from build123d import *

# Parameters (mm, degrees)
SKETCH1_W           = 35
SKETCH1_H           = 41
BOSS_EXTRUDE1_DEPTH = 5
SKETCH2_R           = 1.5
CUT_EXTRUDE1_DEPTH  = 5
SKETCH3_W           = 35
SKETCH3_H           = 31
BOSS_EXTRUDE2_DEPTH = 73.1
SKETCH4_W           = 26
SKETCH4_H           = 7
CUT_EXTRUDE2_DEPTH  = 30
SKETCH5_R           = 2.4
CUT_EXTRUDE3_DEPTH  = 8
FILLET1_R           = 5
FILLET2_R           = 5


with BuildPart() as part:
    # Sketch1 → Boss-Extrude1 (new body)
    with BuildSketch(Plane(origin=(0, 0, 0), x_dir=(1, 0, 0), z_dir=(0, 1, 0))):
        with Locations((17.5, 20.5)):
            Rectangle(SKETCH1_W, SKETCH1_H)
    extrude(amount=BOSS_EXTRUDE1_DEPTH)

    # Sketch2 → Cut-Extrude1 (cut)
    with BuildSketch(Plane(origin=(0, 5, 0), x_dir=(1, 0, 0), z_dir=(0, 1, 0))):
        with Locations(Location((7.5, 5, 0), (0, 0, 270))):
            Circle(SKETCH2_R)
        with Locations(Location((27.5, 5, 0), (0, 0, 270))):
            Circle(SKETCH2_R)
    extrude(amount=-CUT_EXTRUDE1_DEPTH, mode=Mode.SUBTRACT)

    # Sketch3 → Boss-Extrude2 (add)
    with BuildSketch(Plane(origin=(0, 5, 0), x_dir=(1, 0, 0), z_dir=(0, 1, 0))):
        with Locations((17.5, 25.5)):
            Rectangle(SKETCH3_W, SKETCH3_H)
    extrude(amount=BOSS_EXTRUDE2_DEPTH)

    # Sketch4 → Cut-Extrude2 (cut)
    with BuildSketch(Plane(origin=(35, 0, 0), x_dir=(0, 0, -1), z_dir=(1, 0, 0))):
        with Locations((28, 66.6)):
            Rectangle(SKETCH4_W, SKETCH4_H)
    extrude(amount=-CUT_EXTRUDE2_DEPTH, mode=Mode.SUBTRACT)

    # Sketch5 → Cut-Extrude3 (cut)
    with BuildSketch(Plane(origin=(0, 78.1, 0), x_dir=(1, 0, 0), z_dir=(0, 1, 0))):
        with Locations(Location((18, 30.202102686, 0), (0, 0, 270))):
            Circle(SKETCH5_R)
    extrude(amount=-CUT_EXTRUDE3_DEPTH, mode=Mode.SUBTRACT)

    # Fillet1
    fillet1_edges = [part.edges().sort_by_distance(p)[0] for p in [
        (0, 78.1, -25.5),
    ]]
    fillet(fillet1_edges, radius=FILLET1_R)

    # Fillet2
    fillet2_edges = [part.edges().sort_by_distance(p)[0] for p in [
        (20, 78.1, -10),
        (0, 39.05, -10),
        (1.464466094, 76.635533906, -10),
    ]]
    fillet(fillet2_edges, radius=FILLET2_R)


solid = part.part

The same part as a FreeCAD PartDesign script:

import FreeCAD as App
import Part
import Sketcher
Q = App.Units.Quantity


def edges_at(feature, points):
    """Names of the edges that pass closest to the given points."""
    edges = feature.Shape.Edges
    near = lambda p: min(range(len(edges)), key=lambda i: edges[i].distToShape(Part.Vertex(*p))[0])
    return sorted({f"Edge{near(p) + 1}" for p in points})

doc = App.newDocument("Part")
params = doc.addObject("Spreadsheet::Sheet", "Params")
for row, (alias, value) in enumerate([
    ("sketch1_width", "35 mm"),
    ("sketch1_height", "41 mm"),
    ("pad1_length", "5 mm"),
    ("sketch2_diameter", "3 mm"),
    ("pocket1_length", "5 mm"),
    ("sketch3_width", "35 mm"),
    ("sketch3_height", "31 mm"),
    ("pad2_length", "73.1 mm"),
    ("sketch4_width", "7 mm"),
    ("sketch4_height", "26 mm"),
    ("pocket2_length", "30 mm"),
    ("sketch5_diameter", "4.8 mm"),
    ("pocket3_length", "8 mm"),
    ("fillet_radius", "5 mm"),
    ("fillet2_radius", "5 mm"),
], start=1):
    params.set(f"A{row}", alias)
    params.set(f"B{row}", "=" + value)
    params.setAlias(f"B{row}", alias)

body = doc.addObject("PartDesign::Body", "Body")

# Sketch on XZ plane
sketch1 = body.newObject("Sketcher::SketchObject", "Sketch")
sketch1.AttachmentSupport = (doc.getObject("XZ_Plane"), [""])
sketch1.MapMode = "FlatFace"
sketch1.addGeometry([
    Part.LineSegment(App.Vector(0, -41, 0), App.Vector(0, 0, 0)),
    Part.LineSegment(App.Vector(0, 0, 0), App.Vector(35, 0, 0)),
    Part.LineSegment(App.Vector(35, 0, 0), App.Vector(35, -41, 0)),
    Part.LineSegment(App.Vector(35, -41, 0), App.Vector(0, -41, 0)),
], False)
sketch1.addConstraint([
    Sketcher.Constraint("Coincident", 0, 2, 1, 1),
    Sketcher.Constraint("Coincident", 1, 2, 2, 1),
    Sketcher.Constraint("Coincident", 2, 2, 3, 1),
    Sketcher.Constraint("Coincident", 3, 2, 0, 1),
    Sketcher.Constraint("Vertical", 0),
    Sketcher.Constraint("Horizontal", 1),
    Sketcher.Constraint("Vertical", 2),
    Sketcher.Constraint("Horizontal", 3),
    Sketcher.Constraint("Coincident", 0, 2, -1, 1),
    Sketcher.Constraint("DistanceX", 1, 1, 1, 2, Q("35 mm")),
    Sketcher.Constraint("DistanceY", 0, 1, 0, 2, Q("41 mm")),
])
sketch1.setExpression("Constraints[9]", "Params.sketch1_width")
sketch1.setExpression("Constraints[10]", "Params.sketch1_height")
pad1 = body.newObject("PartDesign::Pad", "Pad")
pad1.Profile = sketch1
pad1.setExpression("Length", "Params.pad1_length")
pad1.Reversed = True

# Sketch on XZ plane
sketch2 = body.newObject("Sketcher::SketchObject", "Sketch001")
sketch2.AttachmentSupport = (doc.getObject("XZ_Plane"), [""])
sketch2.MapMode = "FlatFace"
sketch2.AttachmentOffset = App.Placement(App.Vector(0, 0, -5), App.Rotation())
sketch2.addGeometry([
    Part.Circle(App.Vector(7.5, -5, 0), App.Vector(0, 0, 1), 1.5),
    Part.Circle(App.Vector(27.5, -5, 0), App.Vector(0, 0, 1), 1.5),
], False)
sketch2.addConstraint([
    Sketcher.Constraint("Equal", 0, 1),
    Sketcher.Constraint("Horizontal", 0, 3, 1, 3),
    Sketcher.Constraint("Diameter", 0, Q("3 mm")),
    Sketcher.Constraint("DistanceY", 0, 3, -1, 1, Q("5 mm")),
    Sketcher.Constraint("DistanceX", 0, 3, 1, 3, Q("20 mm")),
    Sketcher.Constraint("DistanceX", -1, 1, 0, 3, Q("7.5 mm")),
])
sketch2.setExpression("Constraints[2]", "Params.sketch2_diameter")
pocket1 = body.newObject("PartDesign::Pocket", "Pocket")
pocket1.Profile = sketch2
pocket1.setExpression("Length", "Params.pocket1_length")
pocket1.Reversed = True

# Sketch on XZ plane
sketch3 = body.newObject("Sketcher::SketchObject", "Sketch002")
sketch3.AttachmentSupport = (doc.getObject("XZ_Plane"), [""])
sketch3.MapMode = "FlatFace"
sketch3.AttachmentOffset = App.Placement(App.Vector(0, 0, -5), App.Rotation())
sketch3.addGeometry([
    Part.LineSegment(App.Vector(0, -41, 0), App.Vector(0, -10, 0)),
    Part.LineSegment(App.Vector(0, -10, 0), App.Vector(35, -10, 0)),
    Part.LineSegment(App.Vector(35, -10, 0), App.Vector(35, -41, 0)),
    Part.LineSegment(App.Vector(35, -41, 0), App.Vector(0, -41, 0)),
], False)
sketch3.addConstraint([
    Sketcher.Constraint("Coincident", 0, 2, 1, 1),
    Sketcher.Constraint("Coincident", 1, 2, 2, 1),
    Sketcher.Constraint("Coincident", 2, 2, 3, 1),
    Sketcher.Constraint("Coincident", 3, 2, 0, 1),
    Sketcher.Constraint("Vertical", 0),
    Sketcher.Constraint("Horizontal", 1),
    Sketcher.Constraint("Vertical", 2),
    Sketcher.Constraint("Horizontal", 3),
    Sketcher.Constraint("PointOnObject", 0, 2, -2),
    Sketcher.Constraint("DistanceX", 1, 1, 1, 2, Q("35 mm")),
    Sketcher.Constraint("DistanceY", 0, 1, 0, 2, Q("31 mm")),
    Sketcher.Constraint("DistanceY", 0, 2, -1, 1, Q("10 mm")),
])
sketch3.setExpression("Constraints[9]", "Params.sketch3_width")
sketch3.setExpression("Constraints[10]", "Params.sketch3_height")
pad2 = body.newObject("PartDesign::Pad", "Pad001")
pad2.Profile = sketch3
pad2.setExpression("Length", "Params.pad2_length")
pad2.Reversed = True

# Sketch on YZ plane
sketch4 = body.newObject("Sketcher::SketchObject", "Sketch003")
sketch4.AttachmentSupport = (doc.getObject("YZ_Plane"), [""])
sketch4.MapMode = "FlatFace"
sketch4.AttachmentOffset = App.Placement(App.Vector(0, 0, 35), App.Rotation())
sketch4.addGeometry([
    Part.LineSegment(App.Vector(70, -15, 0), App.Vector(63, -15, 0)),
    Part.LineSegment(App.Vector(63, -15, 0), App.Vector(63, -41, 0)),
    Part.LineSegment(App.Vector(63, -41, 0), App.Vector(70, -41, 0)),
    Part.LineSegment(App.Vector(70, -41, 0), App.Vector(70, -15, 0)),
], False)
sketch4.addConstraint([
    Sketcher.Constraint("Coincident", 0, 2, 1, 1),
    Sketcher.Constraint("Coincident", 1, 2, 2, 1),
    Sketcher.Constraint("Coincident", 2, 2, 3, 1),
    Sketcher.Constraint("Coincident", 3, 2, 0, 1),
    Sketcher.Constraint("Horizontal", 0),
    Sketcher.Constraint("Vertical", 1),
    Sketcher.Constraint("Horizontal", 2),
    Sketcher.Constraint("Vertical", 3),
    Sketcher.Constraint("DistanceX", 0, 2, 0, 1, Q("7 mm")),
    Sketcher.Constraint("DistanceY", 1, 2, 1, 1, Q("26 mm")),
    Sketcher.Constraint("DistanceY", 0, 2, -1, 1, Q("15 mm")),
    Sketcher.Constraint("DistanceX", -1, 1, 0, 2, Q("63.1 mm")),
])
sketch4.setExpression("Constraints[8]", "Params.sketch4_width")
sketch4.setExpression("Constraints[9]", "Params.sketch4_height")
pocket2 = body.newObject("PartDesign::Pocket", "Pocket001")
pocket2.Profile = sketch4
pocket2.setExpression("Length", "Params.pocket2_length")

# Sketch on XZ plane
sketch5 = body.newObject("Sketcher::SketchObject", "Sketch004")
sketch5.AttachmentSupport = (doc.getObject("XZ_Plane"), [""])
sketch5.MapMode = "FlatFace"
sketch5.AttachmentOffset = App.Placement(App.Vector(0, 0, -78.1), App.Rotation())
sketch5.addGeometry(Part.Circle(App.Vector(18, -30.2, 0), App.Vector(0, 0, 1), 2.4), False)
sketch5.addConstraint([
    Sketcher.Constraint("Diameter", 0, Q("4.8 mm")),
    Sketcher.Constraint("DistanceX", -1, 1, 0, 3, Q("18 mm")),
    Sketcher.Constraint("DistanceY", 0, 3, -1, 1, Q("30.202103 mm")),
])
sketch5.setExpression("Constraints[0]", "Params.sketch5_diameter")
pocket3 = body.newObject("PartDesign::Pocket", "Pocket002")
pocket3.Profile = sketch5
pocket3.setExpression("Length", "Params.pocket3_length")
pocket3.Reversed = True
doc.recompute()

fillet = body.newObject("PartDesign::Fillet", "Fillet")
fillet.Base = (pocket3, edges_at(pocket3, [(0, 78.1, -25.5)]))
fillet.setExpression("Radius", "Params.fillet_radius")
doc.recompute()

fillet2 = body.newObject("PartDesign::Fillet", "Fillet001")
fillet2.Base = (fillet, edges_at(fillet, [(20, 78.1, -10), (0, 39.05, -10), (1.464, 76.636, -10)]))
fillet2.setExpression("Radius", "Params.fillet2_radius")

doc.recompute()
